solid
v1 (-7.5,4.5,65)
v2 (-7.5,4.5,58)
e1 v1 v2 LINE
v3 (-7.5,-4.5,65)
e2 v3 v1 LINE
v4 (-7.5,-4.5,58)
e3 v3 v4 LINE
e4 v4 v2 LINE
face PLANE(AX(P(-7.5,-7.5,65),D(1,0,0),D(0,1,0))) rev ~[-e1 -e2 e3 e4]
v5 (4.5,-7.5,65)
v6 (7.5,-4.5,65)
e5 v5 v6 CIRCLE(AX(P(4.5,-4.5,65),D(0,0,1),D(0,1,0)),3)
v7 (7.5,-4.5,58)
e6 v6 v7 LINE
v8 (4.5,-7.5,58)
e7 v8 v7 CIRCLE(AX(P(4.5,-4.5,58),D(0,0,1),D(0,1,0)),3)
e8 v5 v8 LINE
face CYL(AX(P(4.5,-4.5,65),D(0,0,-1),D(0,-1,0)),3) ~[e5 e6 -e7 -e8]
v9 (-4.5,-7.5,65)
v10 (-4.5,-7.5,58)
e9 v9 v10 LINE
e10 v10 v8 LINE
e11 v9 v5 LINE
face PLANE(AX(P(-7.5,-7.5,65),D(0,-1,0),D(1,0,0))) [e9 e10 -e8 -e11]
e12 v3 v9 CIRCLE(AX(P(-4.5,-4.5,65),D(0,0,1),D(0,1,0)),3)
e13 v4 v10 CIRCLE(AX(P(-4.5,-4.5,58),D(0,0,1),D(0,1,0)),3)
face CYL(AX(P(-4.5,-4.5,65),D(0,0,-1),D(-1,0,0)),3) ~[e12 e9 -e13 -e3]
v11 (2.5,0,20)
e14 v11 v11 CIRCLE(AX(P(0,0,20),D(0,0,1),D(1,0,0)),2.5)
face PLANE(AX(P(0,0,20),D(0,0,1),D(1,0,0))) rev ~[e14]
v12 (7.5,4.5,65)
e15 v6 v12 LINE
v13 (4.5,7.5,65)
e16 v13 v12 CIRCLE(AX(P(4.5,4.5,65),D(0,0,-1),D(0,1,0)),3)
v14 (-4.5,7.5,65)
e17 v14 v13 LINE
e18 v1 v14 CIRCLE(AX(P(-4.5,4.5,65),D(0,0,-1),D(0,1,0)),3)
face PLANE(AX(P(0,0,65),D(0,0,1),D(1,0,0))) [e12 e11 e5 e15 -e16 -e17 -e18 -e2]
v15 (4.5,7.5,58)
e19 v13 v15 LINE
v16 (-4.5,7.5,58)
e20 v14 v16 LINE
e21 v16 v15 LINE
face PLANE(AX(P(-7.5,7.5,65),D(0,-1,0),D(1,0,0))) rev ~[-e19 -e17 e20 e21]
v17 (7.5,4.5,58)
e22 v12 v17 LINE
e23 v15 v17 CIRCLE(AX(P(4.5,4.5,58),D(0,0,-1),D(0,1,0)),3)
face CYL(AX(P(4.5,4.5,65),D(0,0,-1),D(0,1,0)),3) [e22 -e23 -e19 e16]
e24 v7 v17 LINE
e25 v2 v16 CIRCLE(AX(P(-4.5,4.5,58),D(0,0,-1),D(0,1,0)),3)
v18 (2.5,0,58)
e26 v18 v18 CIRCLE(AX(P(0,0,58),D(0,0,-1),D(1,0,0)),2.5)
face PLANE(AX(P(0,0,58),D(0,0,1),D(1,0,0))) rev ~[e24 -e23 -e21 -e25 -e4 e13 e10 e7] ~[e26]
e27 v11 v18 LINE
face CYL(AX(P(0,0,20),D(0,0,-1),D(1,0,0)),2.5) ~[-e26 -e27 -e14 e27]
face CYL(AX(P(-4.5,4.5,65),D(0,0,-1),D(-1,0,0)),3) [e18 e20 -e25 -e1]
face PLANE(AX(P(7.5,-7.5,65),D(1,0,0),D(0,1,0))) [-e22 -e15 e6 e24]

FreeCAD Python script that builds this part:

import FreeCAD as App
import Part
import Sketcher

V = App.Vector
Q = App.Units.Quantity


def edges_at(feature, points):
    """Names of the edges that pass closest to the given points."""
    edges = feature.Shape.Edges
    near = lambda p: min(range(len(edges)), key=lambda i: edges[i].distToShape(Part.Vertex(*p))[0])
    return sorted({f"Edge{near(p) + 1}" for p in points})

doc = App.newDocument("Part")
body = doc.addObject("PartDesign::Body", "Body")

# Sketch on XY plane
sketch1 = body.newObject("Sketcher::SketchObject", "Sketch")
sketch1.AttachmentSupport = (doc.getObject("XY_Plane"), [""])
sketch1.MapMode = "FlatFace"
sketch1.addGeometry(Part.Circle(V(0, 0, 0), V(0, 0, 1), 2.5), False)
sketch1.addConstraint(Sketcher.Constraint("Coincident", 0, 3, -1, 1))
sketch1.addConstraint(Sketcher.Constraint("Diameter", 0, Q("5 mm")))
pad1 = body.newObject("PartDesign::Pad", "Pad")
pad1.Profile = sketch1
pad1.Length = 45

# Sketch on XY plane
sketch2 = body.newObject("Sketcher::SketchObject", "Sketch001")
sketch2.AttachmentSupport = (doc.getObject("XY_Plane"), [""])
sketch2.MapMode = "FlatFace"
sketch2.AttachmentOffset = App.Placement(V(0, 0, 45), App.Rotation())
sketch2.addGeometry(Part.LineSegment(V(-7.5, 7.5, 0), V(-7.5, -7.5, 0)), False)
sketch2.addGeometry(Part.LineSegment(V(-7.5, -7.5, 0), V(7.5, -7.5, 0)), False)
sketch2.addGeometry(Part.LineSegment(V(7.5, -7.5, 0), V(7.5, 7.5, 0)), False)
sketch2.addGeometry(Part.LineSegment(V(7.5, 7.5, 0), V(-7.5, 7.5, 0)), False)
sketch2.addConstraint(Sketcher.Constraint("Coincident", 0, 2, 1, 1))
sketch2.addConstraint(Sketcher.Constraint("Coincident", 1, 2, 2, 1))
sketch2.addConstraint(Sketcher.Constraint("Coincident", 2, 2, 3, 1))
sketch2.addConstraint(Sketcher.Constraint("Coincident", 3, 2, 0, 1))
sketch2.addConstraint(Sketcher.Constraint("Vertical", 0))
sketch2.addConstraint(Sketcher.Constraint("Horizontal", 1))
sketch2.addConstraint(Sketcher.Constraint("Vertical", 2))
sketch2.addConstraint(Sketcher.Constraint("Horizontal", 3))
sketch2.addConstraint(Sketcher.Constraint("Symmetric", 0, 2, 2, 2, -1, 1))
sketch2.addConstraint(Sketcher.Constraint("Equal", 3, 0))
sketch2.addConstraint(Sketcher.Constraint("DistanceX", 1, 1, 1, 2, Q("15 mm")))
pad2 = body.newObject("PartDesign::Pad", "Pad001")
pad2.Profile = sketch2
pad2.Length = 7
pad2.Reversed = True
doc.recompute()

fillet = body.newObject("PartDesign::Fillet", "Fillet")
fillet.Base = (pad2, edges_at(pad2, [
    (7.5, -7.5, 41.5),
    (7.5, 7.5, 41.5),
    (-7.5, 7.5, 41.5),
    (-7.5, -7.5, 41.5),
]))
fillet.Radius = 3
body2 = doc.addObject("PartDesign::Body", "Body001")
doc.recompute()

body.Placement = App.Placement(V(0, 0, 20), App.Rotation(V(0, 0, 1), 0))
boolean = body2.newObject("PartDesign::Boolean", "Boolean")
boolean.Type = "Fuse"
boolean.addObjects([body])

doc.recompute()
